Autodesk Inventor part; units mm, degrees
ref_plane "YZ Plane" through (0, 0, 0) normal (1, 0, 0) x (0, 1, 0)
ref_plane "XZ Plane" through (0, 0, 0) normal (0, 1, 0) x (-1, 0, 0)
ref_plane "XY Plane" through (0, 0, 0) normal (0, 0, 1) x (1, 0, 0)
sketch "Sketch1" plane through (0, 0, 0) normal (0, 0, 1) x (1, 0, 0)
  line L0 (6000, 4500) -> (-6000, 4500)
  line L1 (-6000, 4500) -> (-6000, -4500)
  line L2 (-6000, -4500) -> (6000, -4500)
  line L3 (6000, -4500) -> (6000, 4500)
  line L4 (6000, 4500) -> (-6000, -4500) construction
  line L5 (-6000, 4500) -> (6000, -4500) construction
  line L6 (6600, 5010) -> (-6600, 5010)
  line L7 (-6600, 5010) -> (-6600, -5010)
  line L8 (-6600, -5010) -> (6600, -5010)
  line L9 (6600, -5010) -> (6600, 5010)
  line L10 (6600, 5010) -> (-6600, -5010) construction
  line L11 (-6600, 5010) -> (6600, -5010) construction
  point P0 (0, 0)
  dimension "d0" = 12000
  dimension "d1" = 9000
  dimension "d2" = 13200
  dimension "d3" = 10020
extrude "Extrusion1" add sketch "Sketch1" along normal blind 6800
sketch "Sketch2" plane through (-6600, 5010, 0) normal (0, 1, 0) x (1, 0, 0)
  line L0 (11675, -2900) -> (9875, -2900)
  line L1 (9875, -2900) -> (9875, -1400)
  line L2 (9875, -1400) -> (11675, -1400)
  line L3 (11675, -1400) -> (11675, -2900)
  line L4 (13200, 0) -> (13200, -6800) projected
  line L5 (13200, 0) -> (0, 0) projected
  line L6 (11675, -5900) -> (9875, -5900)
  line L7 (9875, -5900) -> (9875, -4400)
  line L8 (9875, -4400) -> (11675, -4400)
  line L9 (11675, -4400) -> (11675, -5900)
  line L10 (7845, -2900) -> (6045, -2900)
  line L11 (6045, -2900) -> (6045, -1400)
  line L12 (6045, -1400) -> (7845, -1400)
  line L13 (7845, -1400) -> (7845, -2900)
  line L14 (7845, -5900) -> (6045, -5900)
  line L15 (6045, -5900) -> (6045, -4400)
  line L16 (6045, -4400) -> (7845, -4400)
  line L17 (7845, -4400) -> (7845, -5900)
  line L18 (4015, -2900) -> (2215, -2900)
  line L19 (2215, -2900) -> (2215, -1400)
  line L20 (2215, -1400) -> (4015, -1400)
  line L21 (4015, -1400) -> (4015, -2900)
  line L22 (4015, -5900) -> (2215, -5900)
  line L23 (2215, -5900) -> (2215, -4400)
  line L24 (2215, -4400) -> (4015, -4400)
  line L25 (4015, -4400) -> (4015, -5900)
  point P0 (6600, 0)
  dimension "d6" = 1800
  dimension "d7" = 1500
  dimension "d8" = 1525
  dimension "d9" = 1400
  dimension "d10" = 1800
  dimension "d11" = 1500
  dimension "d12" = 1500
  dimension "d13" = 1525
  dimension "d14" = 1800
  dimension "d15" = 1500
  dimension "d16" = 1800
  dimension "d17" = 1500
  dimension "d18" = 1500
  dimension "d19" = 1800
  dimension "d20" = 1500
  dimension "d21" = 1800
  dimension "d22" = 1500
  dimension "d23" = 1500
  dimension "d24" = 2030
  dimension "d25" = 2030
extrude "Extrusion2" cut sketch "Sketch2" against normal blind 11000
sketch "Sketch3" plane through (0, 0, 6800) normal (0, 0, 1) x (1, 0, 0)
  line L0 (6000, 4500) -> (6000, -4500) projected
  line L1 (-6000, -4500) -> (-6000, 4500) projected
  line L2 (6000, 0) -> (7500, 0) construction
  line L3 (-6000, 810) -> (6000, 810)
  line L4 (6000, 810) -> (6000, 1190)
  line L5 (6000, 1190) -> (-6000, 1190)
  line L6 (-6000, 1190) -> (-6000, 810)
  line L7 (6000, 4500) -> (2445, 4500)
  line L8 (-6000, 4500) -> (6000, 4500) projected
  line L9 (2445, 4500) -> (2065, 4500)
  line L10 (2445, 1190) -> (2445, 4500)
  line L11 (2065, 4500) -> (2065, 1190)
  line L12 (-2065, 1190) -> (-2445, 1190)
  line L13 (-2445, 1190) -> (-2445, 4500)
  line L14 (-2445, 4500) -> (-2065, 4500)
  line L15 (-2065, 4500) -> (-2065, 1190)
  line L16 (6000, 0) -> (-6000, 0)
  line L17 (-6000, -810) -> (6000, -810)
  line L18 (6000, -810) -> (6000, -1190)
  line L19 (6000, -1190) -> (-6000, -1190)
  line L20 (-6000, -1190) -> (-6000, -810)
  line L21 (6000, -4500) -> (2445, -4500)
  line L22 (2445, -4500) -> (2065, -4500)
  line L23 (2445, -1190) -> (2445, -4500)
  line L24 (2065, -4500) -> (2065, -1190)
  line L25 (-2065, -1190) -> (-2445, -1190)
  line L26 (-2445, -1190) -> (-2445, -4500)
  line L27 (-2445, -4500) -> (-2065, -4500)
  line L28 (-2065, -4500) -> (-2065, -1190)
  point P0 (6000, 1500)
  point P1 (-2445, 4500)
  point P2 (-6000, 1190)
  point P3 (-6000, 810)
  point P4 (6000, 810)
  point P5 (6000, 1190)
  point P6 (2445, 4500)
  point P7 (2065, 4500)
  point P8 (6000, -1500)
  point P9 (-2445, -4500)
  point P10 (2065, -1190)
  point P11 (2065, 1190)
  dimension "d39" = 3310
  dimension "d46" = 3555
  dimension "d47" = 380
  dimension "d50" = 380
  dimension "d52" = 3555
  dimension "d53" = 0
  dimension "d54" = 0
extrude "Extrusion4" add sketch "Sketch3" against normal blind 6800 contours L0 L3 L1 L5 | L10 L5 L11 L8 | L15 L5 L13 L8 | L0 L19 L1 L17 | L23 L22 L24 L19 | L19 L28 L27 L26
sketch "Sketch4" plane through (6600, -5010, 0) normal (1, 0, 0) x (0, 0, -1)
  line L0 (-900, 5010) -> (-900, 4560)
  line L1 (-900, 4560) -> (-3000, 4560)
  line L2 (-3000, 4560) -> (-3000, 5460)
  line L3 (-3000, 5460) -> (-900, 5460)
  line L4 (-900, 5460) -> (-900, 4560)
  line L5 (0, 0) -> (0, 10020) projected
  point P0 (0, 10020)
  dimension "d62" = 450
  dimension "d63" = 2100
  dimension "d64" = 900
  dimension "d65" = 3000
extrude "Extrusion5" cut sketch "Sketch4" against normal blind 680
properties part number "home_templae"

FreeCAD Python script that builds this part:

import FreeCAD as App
import Part
import Sketcher

V = App.Vector
Q = App.Units.Quantity

doc = App.newDocument("Part")
params = doc.addObject("Spreadsheet::Sheet", "Params")
for row, (alias, value) in enumerate([
    ("sketch1_width", "13200 mm"),
    ("sketch1_width2", "12000 mm"),
    ("sketch1_height", "10020 mm"),
    ("sketch1_height2", "9000 mm"),
    ("pad1_length", "6800 mm"),
    ("sketch2_width", "1800 mm"),
    ("sketch2_height", "1500 mm"),
    ("pocket1_length", "11000 mm"),
    ("sketch3_width", "3555 mm"),
    ("sketch3_width2", "380 mm"),
    ("sketch3_height", "3310 mm"),
    ("sketch3_width3", "4130 mm"),
    ("pad2_length", "6800 mm"),
    ("sketch4_width", "900 mm"),
    ("sketch4_height", "2100 mm"),
    ("pocket2_length", "680 mm"),
], start=1):
    params.set(f"A{row}", alias)
    params.set(f"B{row}", "=" + value)
    params.setAlias(f"B{row}", alias)

body = doc.addObject("PartDesign::Body", "Body")

# Sketch on XY plane
sketch1 = doc.addObject("Sketcher::SketchObject", "Sketch")
body.addObject(sketch1)
sketch1.AttachmentSupport = (doc.XY_Plane, [""])
sketch1.MapMode = "FlatFace"
sketch1.addGeometry(Part.LineSegment(V(6600, -5010, 0), V(6600, 5010, 0)), False)
sketch1.addGeometry(Part.LineSegment(V(6600, 5010, 0), V(-6600, 5010, 0)), False)
sketch1.addGeometry(Part.LineSegment(V(-6600, 5010, 0), V(-6600, -5010, 0)), False)
sketch1.addGeometry(Part.LineSegment(V(-6600, -5010, 0), V(6600, -5010, 0)), False)
sketch1.addGeometry(Part.LineSegment(V(-6000, 4500, 0), V(6000, 4500, 0)), False)
sketch1.addGeometry(Part.LineSegment(V(6000, 4500, 0), V(6000, -4500, 0)), False)
sketch1.addGeometry(Part.LineSegment(V(6000, -4500, 0), V(-6000, -4500, 0)), False)
sketch1.addGeometry(Part.LineSegment(V(-6000, -4500, 0), V(-6000, 4500, 0)), False)
sketch1.addConstraint(Sketcher.Constraint("Coincident", 0, 2, 1, 1))
sketch1.addConstraint(Sketcher.Constraint("Coincident", 1, 2, 2, 1))
sketch1.addConstraint(Sketcher.Constraint("Coincident", 2, 2, 3, 1))
sketch1.addConstraint(Sketcher.Constraint("Coincident", 3, 2, 0, 1))
sketch1.addConstraint(Sketcher.Constraint("Coincident", 4, 2, 5, 1))
sketch1.addConstraint(Sketcher.Constraint("Coincident", 5, 2, 6, 1))
sketch1.addConstraint(Sketcher.Constraint("Coincident", 6, 2, 7, 1))
sketch1.addConstraint(Sketcher.Constraint("Coincident", 7, 2, 4, 1))
sketch1.addConstraint(Sketcher.Constraint("Vertical", 0))
sketch1.addConstraint(Sketcher.Constraint("Horizontal", 1))
sketch1.addConstraint(Sketcher.Constraint("Vertical", 2))
sketch1.addConstraint(Sketcher.Constraint("Horizontal", 3))
sketch1.addConstraint(Sketcher.Constraint("Horizontal", 4))
sketch1.addConstraint(Sketcher.Constraint("Vertical", 5))
sketch1.addConstraint(Sketcher.Constraint("Horizontal", 6))
sketch1.addConstraint(Sketcher.Constraint("Vertical", 7))
sketch1.addConstraint(Sketcher.Constraint("Symmetric", 0, 2, 2, 2, -1, 1))
sketch1.addConstraint(Sketcher.Constraint("Symmetric", 4, 2, 6, 2, -1, 1))
sketch1.addConstraint(Sketcher.Constraint("DistanceX", 1, 2, 1, 1, Q("13200 mm")))
sketch1.addConstraint(Sketcher.Constraint("DistanceX", 4, 1, 4, 2, Q("12000 mm")))
sketch1.addConstraint(Sketcher.Constraint("DistanceY", 0, 1, 0, 2, Q("10020 mm")))
sketch1.addConstraint(Sketcher.Constraint("DistanceY", 5, 2, 5, 1, Q("9000 mm")))
sketch1.setExpression("Constraints[18]", "Params.sketch1_width")
sketch1.setExpression("Constraints[19]", "Params.sketch1_width2")
sketch1.setExpression("Constraints[20]", "Params.sketch1_height")
sketch1.setExpression("Constraints[21]", "Params.sketch1_height2")
pad1 = doc.addObject("PartDesign::Pad", "Pad")
body.addObject(pad1)
pad1.Profile = sketch1
pad1.setExpression("Length", "Params.pad1_length")

# Sketch on XZ plane
sketch2 = doc.addObject("Sketcher::SketchObject", "Sketch001")
body.addObject(sketch2)
sketch2.AttachmentSupport = (doc.XZ_Plane, [""])
sketch2.MapMode = "FlatFace"
sketch2.AttachmentOffset = App.Placement(V(0, 0, -5010), App.Rotation())
sketch2.addGeometry(Part.LineSegment(V(3275, 2900, 0), V(5075, 2900, 0)), False)
sketch2.addGeometry(Part.LineSegment(V(5075, 2900, 0), V(5075, 1400, 0)), False)
sketch2.addGeometry(Part.LineSegment(V(5075, 1400, 0), V(3275, 1400, 0)), False)
sketch2.addGeometry(Part.LineSegment(V(3275, 1400, 0), V(3275, 2900, 0)), False)
sketch2.addGeometry(Part.LineSegment(V(3275, 5900, 0), V(5075, 5900, 0)), False)
sketch2.addGeometry(Part.LineSegment(V(5075, 5900, 0), V(5075, 4400, 0)), False)
sketch2.addGeometry(Part.LineSegment(V(5075, 4400, 0), V(3275, 4400, 0)), False)
sketch2.addGeometry(Part.LineSegment(V(3275, 4400, 0), V(3275, 5900, 0)), False)
sketch2.addGeometry(Part.LineSegment(V(-555, 2900, 0), V(1245, 2900, 0)), False)
sketch2.addGeometry(Part.LineSegment(V(1245, 2900, 0), V(1245, 1400, 0)), False)
sketch2.addGeometry(Part.LineSegment(V(1245, 1400, 0), V(-555, 1400, 0)), False)
sketch2.addGeometry(Part.LineSegment(V(-555, 1400, 0), V(-555, 2900, 0)), False)
sketch2.addGeometry(Part.LineSegment(V(-555, 5900, 0), V(1245, 5900, 0)), False)
sketch2.addGeometry(Part.LineSegment(V(1245, 5900, 0), V(1245, 4400, 0)), False)
sketch2.addGeometry(Part.LineSegment(V(1245, 4400, 0), V(-555, 4400, 0)), False)
sketch2.addGeometry(Part.LineSegment(V(-555, 4400, 0), V(-555, 5900, 0)), False)
sketch2.addGeometry(Part.LineSegment(V(-4385, 2900, 0), V(-2585, 2900, 0)), False)
sketch2.addGeometry(Part.LineSegment(V(-2585, 2900, 0), V(-2585, 1400, 0)), False)
sketch2.addGeometry(Part.LineSegment(V(-2585, 1400, 0), V(-4385, 1400, 0)), False)
sketch2.addGeometry(Part.LineSegment(V(-4385, 1400, 0), V(-4385, 2900, 0)), False)
sketch2.addGeometry(Part.LineSegment(V(-4385, 5900, 0), V(-2585, 5900, 0)), False)
sketch2.addGeometry(Part.LineSegment(V(-2585, 5900, 0), V(-2585, 4400, 0)), False)
sketch2.addGeometry(Part.LineSegment(V(-2585, 4400, 0), V(-4385, 4400, 0)), False)
sketch2.addGeometry(Part.LineSegment(V(-4385, 4400, 0), V(-4385, 5900, 0)), False)
sketch2.addConstraint(Sketcher.Constraint("Coincident", 0, 2, 1, 1))
sketch2.addConstraint(Sketcher.Constraint("Coincident", 1, 2, 2, 1))
sketch2.addConstraint(Sketcher.Constraint("Coincident", 2, 2, 3, 1))
sketch2.addConstraint(Sketcher.Constraint("Coincident", 3, 2, 0, 1))
sketch2.addConstraint(Sketcher.Constraint("Coincident", 4, 2, 5, 1))
sketch2.addConstraint(Sketcher.Constraint("Coincident", 5, 2, 6, 1))
sketch2.addConstraint(Sketcher.Constraint("Coincident", 6, 2, 7, 1))
sketch2.addConstraint(Sketcher.Constraint("Coincident", 7, 2, 4, 1))
sketch2.addConstraint(Sketcher.Constraint("Coincident", 8, 2, 9, 1))
sketch2.addConstraint(Sketcher.Constraint("Coincident", 9, 2, 10, 1))
sketch2.addConstraint(Sketcher.Constraint("Coincident", 10, 2, 11, 1))
sketch2.addConstraint(Sketcher.Constraint("Coincident", 11, 2, 8, 1))
sketch2.addConstraint(Sketcher.Constraint("Coincident", 12, 2, 13, 1))
sketch2.addConstraint(Sketcher.Constraint("Coincident", 13, 2, 14, 1))
sketch2.addConstraint(Sketcher.Constraint("Coincident", 14, 2, 15, 1))
sketch2.addConstraint(Sketcher.Constraint("Coincident", 15, 2, 12, 1))
sketch2.addConstraint(Sketcher.Constraint("Coincident", 16, 2, 17, 1))
sketch2.addConstraint(Sketcher.Constraint("Coincident", 17, 2, 18, 1))
sketch2.addConstraint(Sketcher.Constraint("Coincident", 18, 2, 19, 1))
sketch2.addConstraint(Sketcher.Constraint("Coincident", 19, 2, 16, 1))
sketch2.addConstraint(Sketcher.Constraint("Coincident", 20, 2, 21, 1))
sketch2.addConstraint(Sketcher.Constraint("Coincident", 21, 2, 22, 1))
sketch2.addConstraint(Sketcher.Constraint("Coincident", 22, 2, 23, 1))
sketch2.addConstraint(Sketcher.Constraint("Coincident", 23, 2, 20, 1))
sketch2.addConstraint(Sketcher.Constraint("Horizontal", 0))
sketch2.addConstraint(Sketcher.Constraint("Vertical", 1))
sketch2.addConstraint(Sketcher.Constraint("Horizontal", 2))
sketch2.addConstraint(Sketcher.Constraint("Vertical", 3))
sketch2.addConstraint(Sketcher.Constraint("Horizontal", 4))
sketch2.addConstraint(Sketcher.Constraint("Vertical", 5))
sketch2.addConstraint(Sketcher.Constraint("Horizontal", 6))
sketch2.addConstraint(Sketcher.Constraint("Vertical", 7))
sketch2.addConstraint(Sketcher.Constraint("Horizontal", 8))
sketch2.addConstraint(Sketcher.Constraint("Vertical", 9))
sketch2.addConstraint(Sketcher.Constraint("Horizontal", 10))
sketch2.addConstraint(Sketcher.Constraint("Vertical", 11))
sketch2.addConstraint(Sketcher.Constraint("Horizontal", 12))
sketch2.addConstraint(Sketcher.Constraint("Vertical", 13))
sketch2.addConstraint(Sketcher.Constraint("Horizontal", 14))
sketch2.addConstraint(Sketcher.Constraint("Vertical", 15))
sketch2.addConstraint(Sketcher.Constraint("Horizontal", 16))
sketch2.addConstraint(Sketcher.Constraint("Vertical", 17))
sketch2.addConstraint(Sketcher.Constraint("Horizontal", 18))
sketch2.addConstraint(Sketcher.Constraint("Vertical", 19))
sketch2.addConstraint(Sketcher.Constraint("Horizontal", 20))
sketch2.addConstraint(Sketcher.Constraint("Vertical", 21))
sketch2.addConstraint(Sketcher.Constraint("Horizontal", 22))
sketch2.addConstraint(Sketcher.Constraint("Vertical", 23))
sketch2.addConstraint(Sketcher.Constraint("Horizontal", 3, 2, 8, 2))
sketch2.addConstraint(Sketcher.Constraint("Horizontal", 2, 2, 9, 2))
sketch2.addConstraint(Sketcher.Constraint("Horizontal", 7, 2, 12, 2))
sketch2.addConstraint(Sketcher.Constraint("Horizontal", 6, 2, 13, 2))
sketch2.addConstraint(Sketcher.Constraint("Horizontal", 11, 2, 16, 2))
sketch2.addConstraint(Sketcher.Constraint("Horizontal", 10, 2, 17, 2))
sketch2.addConstraint(Sketcher.Constraint("Horizontal", 15, 2, 20, 2))
sketch2.addConstraint(Sketcher.Constraint("Horizontal", 14, 2, 21, 2))
sketch2.addConstraint(Sketcher.Constraint("Vertical", 1, 2, 4, 2))
sketch2.addConstraint(Sketcher.Constraint("Vertical", 3, 2, 6, 2))
sketch2.addConstraint(Sketcher.Constraint("Vertical", 9, 2, 12, 2))
sketch2.addConstraint(Sketcher.Constraint("Vertical", 11, 2, 14, 2))
sketch2.addConstraint(Sketcher.Constraint("Vertical", 17, 2, 20, 2))
sketch2.addConstraint(Sketcher.Constraint("Vertical", 19, 2, 22, 2))
sketch2.addConstraint(Sketcher.Constraint("Equal", 6, 8))
sketch2.addConstraint(Sketcher.Constraint("Equal", 14, 16))
sketch2.addConstraint(Sketcher.Constraint("Equal", 3, 5))
sketch2.addConstraint(Sketcher.Constraint("DistanceX", 0, 1, 0, 2, Q("1800 mm")))
sketch2.addConstraint(Sketcher.Constraint("DistanceY", 1, 2, 1, 1, Q("1500 mm")))
sketch2.addConstraint(Sketcher.Constraint("DistanceY", -1, 1, 1, 2, Q("1400 mm")))
sketch2.addConstraint(Sketcher.Constraint("DistanceY", 0, 2, 5, 2, Q("1500 mm")))
sketch2.addConstraint(Sketcher.Constraint("DistanceX", 8, 2, 3, 2, Q("2030 mm")))
sketch2.addConstraint(Sketcher.Constraint("DistanceX", 16, 2, 11, 2, Q("2030 mm")))
sketch2.addConstraint(Sketcher.Constraint("DistanceX", -1, 1, 0, 2, Q("5075 mm")))
sketch2.setExpression("Constraints[65]", "Params.sketch2_width")
sketch2.setExpression("Constraints[66]", "Params.sketch2_height")
pocket1 = doc.addObject("PartDesign::Pocket", "Pocket")
body.addObject(pocket1)
pocket1.Profile = sketch2
pocket1.setExpression("Length", "Params.pocket1_length")
pocket1.Reversed = True

# Sketch on XY plane
sketch3 = doc.addObject("Sketcher::SketchObject", "Sketch002")
body.addObject(sketch3)
sketch3.AttachmentSupport = (doc.XY_Plane, [""])
sketch3.MapMode = "FlatFace"
sketch3.AttachmentOffset = App.Placement(V(0, 0, 6800), App.Rotation())
sketch3.addGeometry(Part.LineSegment(V(6000, 810, 0), V(6000, 1190, 0)), False)
sketch3.addGeometry(Part.LineSegment(V(6000, 1190, 0), V(2445, 1190, 0)), False)
sketch3.addGeometry(Part.LineSegment(V(2445, 1190, 0), V(2445, 4500, 0)), False)
sketch3.addGeometry(Part.LineSegment(V(2445, 4500, 0), V(2065, 4500, 0)), False)
sketch3.addGeometry(Part.LineSegment(V(2065, 4500, 0), V(2065, 1190, 0)), False)
sketch3.addGeometry(Part.LineSegment(V(2065, 1190, 0), V(-2065, 1190, 0)), False)
sketch3.addGeometry(Part.LineSegment(V(-2065, 1190, 0), V(-2065, 4500, 0)), False)
sketch3.addGeometry(Part.LineSegment(V(-2065, 4500, 0), V(-2445, 4500, 0)), False)
sketch3.addGeometry(Part.LineSegment(V(-2445, 4500, 0), V(-2445, 1190, 0)), False)
sketch3.addGeometry(Part.LineSegment(V(-2445, 1190, 0), V(-6000, 1190, 0)), False)
sketch3.addGeometry(Part.LineSegment(V(-6000, 1190, 0), V(-6000, 810, 0)), False)
sketch3.addGeometry(Part.LineSegment(V(-6000, 810, 0), V(6000, 810, 0)), False)
sketch3.addGeometry(Part.LineSegment(V(6000, -1190, 0), V(6000, -810, 0)), False)
sketch3.addGeometry(Part.LineSegment(V(6000, -810, 0), V(-6000, -810, 0)), False)
sketch3.addGeometry(Part.LineSegment(V(-6000, -810, 0), V(-6000, -1190, 0)), False)
sketch3.addGeometry(Part.LineSegment(V(-6000, -1190, 0), V(-2445, -1190, 0)), False)
sketch3.addGeometry(Part.LineSegment(V(-2445, -1190, 0), V(-2445, -4500, 0)), False)
sketch3.addGeometry(Part.LineSegment(V(-2445, -4500, 0), V(-2065, -4500, 0)), False)
sketch3.addGeometry(Part.LineSegment(V(-2065, -4500, 0), V(-2065, -1190, 0)), False)
sketch3.addGeometry(Part.LineSegment(V(-2065, -1190, 0), V(2065, -1190, 0)), False)
sketch3.addGeometry(Part.LineSegment(V(2065, -1190, 0), V(2065, -4500, 0)), False)
sketch3.addGeometry(Part.LineSegment(V(2065, -4500, 0), V(2445, -4500, 0)), False)
sketch3.addGeometry(Part.LineSegment(V(2445, -4500, 0), V(2445, -1190, 0)), False)
sketch3.addGeometry(Part.LineSegment(V(2445, -1190, 0), V(6000, -1190, 0)), False)
sketch3.addConstraint(Sketcher.Constraint("Coincident", 0, 2, 1, 1))
sketch3.addConstraint(Sketcher.Constraint("Coincident", 1, 2, 2, 1))
sketch3.addConstraint(Sketcher.Constraint("Coincident", 2, 2, 3, 1))
sketch3.addConstraint(Sketcher.Constraint("Coincident", 3, 2, 4, 1))
sketch3.addConstraint(Sketcher.Constraint("Coincident", 4, 2, 5, 1))
sketch3.addConstraint(Sketcher.Constraint("Coincident", 5, 2, 6, 1))
sketch3.addConstraint(Sketcher.Constraint("Coincident", 6, 2, 7, 1))
sketch3.addConstraint(Sketcher.Constraint("Coincident", 7, 2, 8, 1))
sketch3.addConstraint(Sketcher.Constraint("Coincident", 8, 2, 9, 1))
sketch3.addConstraint(Sketcher.Constraint("Coincident", 9, 2, 10, 1))
sketch3.addConstraint(Sketcher.Constraint("Coincident", 10, 2, 11, 1))
sketch3.addConstraint(Sketcher.Constraint("Coincident", 11, 2, 0, 1))
sketch3.addConstraint(Sketcher.Constraint("Coincident", 12, 2, 13, 1))
sketch3.addConstraint(Sketcher.Constraint("Coincident", 13, 2, 14, 1))
sketch3.addConstraint(Sketcher.Constraint("Coincident", 14, 2, 15, 1))
sketch3.addConstraint(Sketcher.Constraint("Coincident", 15, 2, 16, 1))
sketch3.addConstraint(Sketcher.Constraint("Coincident", 16, 2, 17, 1))
sketch3.addConstraint(Sketcher.Constraint("Coincident", 17, 2, 18, 1))
sketch3.addConstraint(Sketcher.Constraint("Coincident", 18, 2, 19, 1))
sketch3.addConstraint(Sketcher.Constraint("Coincident", 19, 2, 20, 1))
sketch3.addConstraint(Sketcher.Constraint("Coincident", 20, 2, 21, 1))
sketch3.addConstraint(Sketcher.Constraint("Coincident", 21, 2, 22, 1))
sketch3.addConstraint(Sketcher.Constraint("Coincident", 22, 2, 23, 1))
sketch3.addConstraint(Sketcher.Constraint("Coincident", 23, 2, 12, 1))
sketch3.addConstraint(Sketcher.Constraint("Vertical", 0))
sketch3.addConstraint(Sketcher.Constraint("Horizontal", 1))
sketch3.addConstraint(Sketcher.Constraint("Vertical", 2))
sketch3.addConstraint(Sketcher.Constraint("Horizontal", 3))
sketch3.addConstraint(Sketcher.Constraint("Vertical", 4))
sketch3.addConstraint(Sketcher.Constraint("Horizontal", 5))
sketch3.addConstraint(Sketcher.Constraint("Vertical", 6))
sketch3.addConstraint(Sketcher.Constraint("Horizontal", 7))
sketch3.addConstraint(Sketcher.Constraint("Vertical", 8))
sketch3.addConstraint(Sketcher.Constraint("Horizontal", 9))
sketch3.addConstraint(Sketcher.Constraint("Vertical", 10))
sketch3.addConstraint(Sketcher.Constraint("Horizontal", 11))
sketch3.addConstraint(Sketcher.Constraint("Vertical", 12))
sketch3.addConstraint(Sketcher.Constraint("Horizontal", 13))
sketch3.addConstraint(Sketcher.Constraint("Vertical", 14))
sketch3.addConstraint(Sketcher.Constraint("Horizontal", 15))
sketch3.addConstraint(Sketcher.Constraint("Vertical", 16))
sketch3.addConstraint(Sketcher.Constraint("Horizontal", 17))
sketch3.addConstraint(Sketcher.Constraint("Vertical", 18))
sketch3.addConstraint(Sketcher.Constraint("Horizontal", 19))
sketch3.addConstraint(Sketcher.Constraint("Vertical", 20))
sketch3.addConstraint(Sketcher.Constraint("Horizontal", 21))
sketch3.addConstraint(Sketcher.Constraint("Vertical", 22))
sketch3.addConstraint(Sketcher.Constraint("Horizontal", 23))
sketch3.addConstraint(Sketcher.Constraint("Symmetric", 10, 2, 12, 2, -1, 1))
sketch3.addConstraint(Sketcher.Constraint("Symmetric", 0, 2, 14, 2, -1, 1))
sketch3.addConstraint(Sketcher.Constraint("Symmetric", 2, 2, 16, 2, -1, 1))
sketch3.addConstraint(Sketcher.Constraint("Symmetric", 4, 2, 18, 2, -1, 1))
sketch3.addConstraint(Sketcher.Constraint("Symmetric", 6, 2, 20, 2, -1, 1))
sketch3.addConstraint(Sketcher.Constraint("Symmetric", 8, 2, 22, 2, -1, 1))
sketch3.addConstraint(Sketcher.Constraint("Symmetric", 3, 2, 6, 2, -2))
sketch3.addConstraint(Sketcher.Constraint("Symmetric", 1, 2, 8, 2, -2))
sketch3.addConstraint(Sketcher.Constraint("Horizontal", 1, 2, 4, 2))
sketch3.addConstraint(Sketcher.Constraint("Vertical", 11, 2, 12, 2))
sketch3.addConstraint(Sketcher.Constraint("Equal", 21, 0))
sketch3.addConstraint(Sketcher.Constraint("DistanceX", 1, 2, 1, 1, Q("3555 mm")))
sketch3.addConstraint(Sketcher.Constraint("DistanceX", 3, 2, 3, 1, Q("380 mm")))
sketch3.addConstraint(Sketcher.Constraint("DistanceY", 2, 1, 2, 2, Q("3310 mm")))
sketch3.addConstraint(Sketcher.Constraint("DistanceX", 5, 2, 5, 1, Q("4130 mm")))
sketch3.addConstraint(Sketcher.Constraint("DistanceY", -1, 1, 0, 2, Q("1190 mm")))
sketch3.setExpression("Constraints[59]", "Params.sketch3_width")
sketch3.setExpression("Constraints[60]", "Params.sketch3_width2")
sketch3.setExpression("Constraints[61]", "Params.sketch3_height")
sketch3.setExpression("Constraints[62]", "Params.sketch3_width3")
pad2 = doc.addObject("PartDesign::Pad", "Pad001")
body.addObject(pad2)
pad2.Profile = sketch3
pad2.setExpression("Length", "Params.pad2_length")
pad2.Reversed = True

# Sketch on YZ plane
sketch4 = doc.addObject("Sketcher::SketchObject", "Sketch003")
body.addObject(sketch4)
sketch4.AttachmentSupport = (doc.YZ_Plane, [""])
sketch4.MapMode = "FlatFace"
sketch4.AttachmentOffset = App.Placement(V(0, 0, 6600), App.Rotation())
sketch4.addGeometry(Part.LineSegment(V(-450, 900, 0), V(450, 900, 0)), False)
sketch4.addGeometry(Part.LineSegment(V(450, 900, 0), V(450, 3000, 0)), False)
sketch4.addGeometry(Part.LineSegment(V(450, 3000, 0), V(-450, 3000, 0)), False)
sketch4.addGeometry(Part.LineSegment(V(-450, 3000, 0), V(-450, 900, 0)), False)
sketch4.addConstraint(Sketcher.Constraint("Coincident", 0, 2, 1, 1))
sketch4.addConstraint(Sketcher.Constraint("Coincident", 1, 2, 2, 1))
sketch4.addConstraint(Sketcher.Constraint("Coincident", 2, 2, 3, 1))
sketch4.addConstraint(Sketcher.Constraint("Coincident", 3, 2, 0, 1))
sketch4.addConstraint(Sketcher.Constraint("Horizontal", 0))
sketch4.addConstraint(Sketcher.Constraint("Vertical", 1))
sketch4.addConstraint(Sketcher.Constraint("Horizontal", 2))
sketch4.addConstraint(Sketcher.Constraint("Vertical", 3))
sketch4.addConstraint(Sketcher.Constraint("DistanceX", 0, 1, 0, 2, Q("900 mm")))
sketch4.addConstraint(Sketcher.Constraint("DistanceY", 1, 1, 1, 2, Q("2100 mm")))
sketch4.addConstraint(Sketcher.Constraint("DistanceX", -1, 1, 0, 2, Q("450 mm")))
sketch4.addConstraint(Sketcher.Constraint("DistanceY", -1, 1, 0, 2, Q("900 mm")))
sketch4.setExpression("Constraints[8]", "Params.sketch4_width")
sketch4.setExpression("Constraints[9]", "Params.sketch4_height")
pocket2 = doc.addObject("PartDesign::Pocket", "Pocket001")
body.addObject(pocket2)
pocket2.Profile = sketch4
pocket2.setExpression("Length", "Params.pocket2_length")

doc.recompute()
